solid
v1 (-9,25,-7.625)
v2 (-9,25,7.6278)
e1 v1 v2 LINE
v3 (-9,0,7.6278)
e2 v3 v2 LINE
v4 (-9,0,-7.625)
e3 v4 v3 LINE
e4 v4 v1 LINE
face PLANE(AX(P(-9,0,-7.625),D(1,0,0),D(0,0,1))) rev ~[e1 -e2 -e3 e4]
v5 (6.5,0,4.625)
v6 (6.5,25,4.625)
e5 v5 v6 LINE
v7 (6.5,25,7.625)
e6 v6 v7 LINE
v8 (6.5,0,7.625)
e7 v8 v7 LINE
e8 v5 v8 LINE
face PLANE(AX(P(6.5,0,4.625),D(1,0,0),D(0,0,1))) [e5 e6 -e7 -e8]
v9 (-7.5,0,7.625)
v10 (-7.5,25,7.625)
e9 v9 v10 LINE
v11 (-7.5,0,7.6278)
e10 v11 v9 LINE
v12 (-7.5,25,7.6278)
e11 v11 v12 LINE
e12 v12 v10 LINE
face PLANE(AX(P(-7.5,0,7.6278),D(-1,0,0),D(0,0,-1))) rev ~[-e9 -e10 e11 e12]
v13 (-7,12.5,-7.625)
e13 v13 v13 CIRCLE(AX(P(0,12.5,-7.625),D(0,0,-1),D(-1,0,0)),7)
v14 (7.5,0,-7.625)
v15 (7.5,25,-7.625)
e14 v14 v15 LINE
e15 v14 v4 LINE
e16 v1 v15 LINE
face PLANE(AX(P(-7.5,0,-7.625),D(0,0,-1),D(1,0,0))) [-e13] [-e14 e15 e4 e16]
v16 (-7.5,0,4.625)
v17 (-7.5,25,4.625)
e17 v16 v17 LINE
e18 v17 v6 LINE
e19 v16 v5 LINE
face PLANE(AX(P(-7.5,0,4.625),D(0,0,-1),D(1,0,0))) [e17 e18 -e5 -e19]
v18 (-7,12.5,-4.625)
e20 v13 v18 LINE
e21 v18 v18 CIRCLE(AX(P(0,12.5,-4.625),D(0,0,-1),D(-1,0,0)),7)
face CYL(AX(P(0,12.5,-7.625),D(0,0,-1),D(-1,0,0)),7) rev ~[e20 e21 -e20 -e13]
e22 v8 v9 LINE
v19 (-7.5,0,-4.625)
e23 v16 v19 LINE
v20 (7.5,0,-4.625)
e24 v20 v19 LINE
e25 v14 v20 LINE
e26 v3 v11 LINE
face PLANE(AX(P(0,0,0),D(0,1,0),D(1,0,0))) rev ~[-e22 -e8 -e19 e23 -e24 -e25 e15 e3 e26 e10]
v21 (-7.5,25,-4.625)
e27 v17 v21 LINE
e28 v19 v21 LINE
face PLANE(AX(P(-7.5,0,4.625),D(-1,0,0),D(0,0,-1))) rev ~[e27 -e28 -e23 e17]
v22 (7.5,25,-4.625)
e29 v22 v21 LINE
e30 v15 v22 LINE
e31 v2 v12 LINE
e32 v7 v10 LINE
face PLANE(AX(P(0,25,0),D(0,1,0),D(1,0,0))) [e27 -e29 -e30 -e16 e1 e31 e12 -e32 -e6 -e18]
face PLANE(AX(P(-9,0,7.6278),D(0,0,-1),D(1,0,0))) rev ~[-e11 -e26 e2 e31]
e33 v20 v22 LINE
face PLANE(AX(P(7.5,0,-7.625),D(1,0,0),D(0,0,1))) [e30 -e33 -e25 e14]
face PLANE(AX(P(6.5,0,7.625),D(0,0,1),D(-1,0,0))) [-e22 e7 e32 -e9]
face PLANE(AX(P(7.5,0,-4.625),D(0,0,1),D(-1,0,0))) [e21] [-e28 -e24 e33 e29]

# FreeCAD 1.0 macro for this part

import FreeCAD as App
import Part
import Sketcher


def add_polygon(sketch, points):
    """Adds a closed chain of lines whose ends are joined by coincident constraints."""
    first, n = sketch.GeometryCount, len(points)
    for a, b in zip(points, points[1:] + points[:1]):
        sketch.addGeometry(Part.LineSegment(App.Vector(*a, 0), App.Vector(*b, 0)), False)
    for i in range(n):
        sketch.addConstraint(Sketcher.Constraint("Coincident", first + i, 2, first + (i + 1) % n, 1))

doc = App.newDocument("Part")
body = doc.addObject("PartDesign::Body", "Body")

sketch1 = body.newObject("Sketcher::SketchObject", "Sketch")
sketch1.AttachmentSupport = (doc.getObject("XZ_Plane"), [""])
sketch1.MapMode = "FlatFace"
add_polygon(sketch1, [(7.5, -7.625), (-9, -7.625), (-9, 7.6278), (-7.5, 7.6278), (-7.5, 7.625), (6.5, 7.625), (6.5, 4.625), (-7.5, 4.625), (-7.5, -4.625), (7.5, -4.625)])
sketch1.addConstraint([
    Sketcher.Constraint("Horizontal", 0),
    Sketcher.Constraint("Vertical", 1),
    Sketcher.Constraint("Horizontal", 2),
    Sketcher.Constraint("Vertical", 3),
    Sketcher.Constraint("Horizontal", 4),
    Sketcher.Constraint("Vertical", 5),
    Sketcher.Constraint("Horizontal", 6),
    Sketcher.Constraint("Vertical", 7),
    Sketcher.Constraint("Horizontal", 8),
    Sketcher.Constraint("Vertical", 9),
    Sketcher.Constraint("Symmetric", 6, 2, 8, 2, -1, 1),
    Sketcher.Constraint("Symmetric", 3, 2, 9, 2, -1, 1),
    Sketcher.Constraint("DistanceX", 4, 1, 4, 2, 14.0),
    Sketcher.Constraint("DistanceX", 8, 1, 8, 2, 15.0),
    Sketcher.Constraint("DistanceX", 2, 1, 2, 2, 1.5),
    Sketcher.Constraint("DistanceY", 5, 2, 5, 1, 3.0),
    Sketcher.Constraint("DistanceY", -1, 1, 5, 2, 4.625),
    Sketcher.Constraint("DistanceY", 1, 1, 1, 2, 15.2528),
])
pad1 = body.newObject("PartDesign::Pad", "Pad")
pad1.Profile = sketch1
pad1.Length = 25
pad1.Reversed = True

sketch2 = body.newObject("Sketcher::SketchObject", "Sketch001")
sketch2.AttachmentSupport = (doc.getObject("XY_Plane"), [""])
sketch2.MapMode = "FlatFace"
sketch2.AttachmentOffset = App.Placement(App.Vector(0, 0, -7.625), App.Rotation())
sketch2.addGeometry(Part.Circle(App.Vector(0, 12, 0), App.Vector(0, 0, 1), 7), False)
sketch2.addConstraint([
    Sketcher.Constraint("PointOnObject", 0, 3, -2),
    Sketcher.Constraint("Diameter", 0, 14.0),
    Sketcher.Constraint("DistanceY", -1, 1, 0, 3, 12.5),
])
pocket1 = body.newObject("PartDesign::Pocket", "Pocket")
pocket1.Profile = sketch2
pocket1.Length = 9
pocket1.Reversed = True

doc.recompute()
